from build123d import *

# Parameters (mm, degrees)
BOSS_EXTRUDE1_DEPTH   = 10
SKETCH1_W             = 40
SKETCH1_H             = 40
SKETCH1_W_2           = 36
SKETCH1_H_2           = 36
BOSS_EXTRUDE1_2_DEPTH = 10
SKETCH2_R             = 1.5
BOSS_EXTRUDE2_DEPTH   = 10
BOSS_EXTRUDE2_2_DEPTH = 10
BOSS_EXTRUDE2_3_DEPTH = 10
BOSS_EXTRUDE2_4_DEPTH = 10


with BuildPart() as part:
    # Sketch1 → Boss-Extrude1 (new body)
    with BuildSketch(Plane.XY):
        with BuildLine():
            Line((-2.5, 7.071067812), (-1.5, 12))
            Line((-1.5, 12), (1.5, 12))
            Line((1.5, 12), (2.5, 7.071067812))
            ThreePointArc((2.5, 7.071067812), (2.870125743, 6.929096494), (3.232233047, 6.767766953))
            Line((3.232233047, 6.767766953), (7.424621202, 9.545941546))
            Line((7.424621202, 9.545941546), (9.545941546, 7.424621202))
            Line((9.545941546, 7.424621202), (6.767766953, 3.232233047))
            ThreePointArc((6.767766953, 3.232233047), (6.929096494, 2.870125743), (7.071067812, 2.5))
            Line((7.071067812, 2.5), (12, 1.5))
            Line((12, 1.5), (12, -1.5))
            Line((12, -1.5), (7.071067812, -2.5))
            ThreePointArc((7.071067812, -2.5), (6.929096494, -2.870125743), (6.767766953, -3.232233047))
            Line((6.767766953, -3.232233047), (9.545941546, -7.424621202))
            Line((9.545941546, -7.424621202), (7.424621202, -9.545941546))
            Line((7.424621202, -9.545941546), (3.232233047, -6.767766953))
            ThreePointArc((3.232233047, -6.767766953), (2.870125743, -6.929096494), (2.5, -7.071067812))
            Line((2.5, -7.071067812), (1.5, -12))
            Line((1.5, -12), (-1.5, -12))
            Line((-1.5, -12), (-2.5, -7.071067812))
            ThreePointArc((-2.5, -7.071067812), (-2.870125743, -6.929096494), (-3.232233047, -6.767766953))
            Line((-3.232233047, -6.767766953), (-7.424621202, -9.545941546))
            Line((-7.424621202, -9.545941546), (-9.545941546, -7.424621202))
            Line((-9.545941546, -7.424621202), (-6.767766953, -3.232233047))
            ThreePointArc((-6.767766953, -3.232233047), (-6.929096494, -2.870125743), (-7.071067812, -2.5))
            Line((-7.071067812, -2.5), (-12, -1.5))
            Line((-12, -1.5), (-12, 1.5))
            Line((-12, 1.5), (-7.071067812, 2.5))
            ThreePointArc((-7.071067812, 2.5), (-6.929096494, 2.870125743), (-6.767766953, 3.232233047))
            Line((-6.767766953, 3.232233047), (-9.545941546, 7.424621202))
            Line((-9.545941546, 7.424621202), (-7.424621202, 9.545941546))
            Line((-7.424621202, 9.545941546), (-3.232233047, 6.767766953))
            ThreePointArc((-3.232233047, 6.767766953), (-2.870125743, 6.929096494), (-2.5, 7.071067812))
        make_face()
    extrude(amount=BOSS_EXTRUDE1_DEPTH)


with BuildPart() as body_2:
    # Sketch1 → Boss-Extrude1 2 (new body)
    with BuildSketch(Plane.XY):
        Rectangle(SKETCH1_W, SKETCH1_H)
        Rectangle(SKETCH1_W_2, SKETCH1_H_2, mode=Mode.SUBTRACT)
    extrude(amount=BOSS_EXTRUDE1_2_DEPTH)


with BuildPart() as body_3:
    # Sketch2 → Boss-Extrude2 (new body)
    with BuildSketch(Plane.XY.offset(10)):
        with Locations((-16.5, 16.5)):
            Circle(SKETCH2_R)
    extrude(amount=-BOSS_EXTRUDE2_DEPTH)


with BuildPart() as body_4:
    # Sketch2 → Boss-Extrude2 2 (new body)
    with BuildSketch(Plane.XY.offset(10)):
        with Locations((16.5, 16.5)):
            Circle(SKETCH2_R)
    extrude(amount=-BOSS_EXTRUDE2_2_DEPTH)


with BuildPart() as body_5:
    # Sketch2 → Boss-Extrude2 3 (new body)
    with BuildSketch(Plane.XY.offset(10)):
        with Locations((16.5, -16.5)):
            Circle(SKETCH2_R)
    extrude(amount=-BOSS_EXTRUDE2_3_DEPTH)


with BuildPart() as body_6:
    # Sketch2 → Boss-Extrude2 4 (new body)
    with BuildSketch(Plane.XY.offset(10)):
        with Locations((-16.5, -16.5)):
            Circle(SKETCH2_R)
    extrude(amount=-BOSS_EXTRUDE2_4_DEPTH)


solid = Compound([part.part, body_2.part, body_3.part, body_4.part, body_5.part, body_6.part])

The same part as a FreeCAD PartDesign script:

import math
import FreeCAD as App
import Part
import Sketcher
from FreeCAD import Vector
Q = App.Units.Quantity


def add_polygon(sketch, points):
    """Adds a closed chain of lines whose ends are joined by coincident constraints."""
    first, n = sketch.GeometryCount, len(points)
    for a, b in zip(points, points[1:] + points[:1]):
        sketch.addGeometry(Part.LineSegment(App.Vector(*a, 0), App.Vector(*b, 0)), False)
    for i in range(n):
        sketch.addConstraint(Sketcher.Constraint("Coincident", first + i, 2, first + (i + 1) % n, 1))

doc = App.newDocument("Part")
params = doc.addObject("Spreadsheet::Sheet", "Params")
for row, (alias, value) in enumerate([
    ("sketch1_radius", "7.5 mm"),
    ("sketch1_width", "3 mm"),
    ("sketch1_length", "3 mm"),
    ("pad1_length", "10 mm"),
    ("sketch2_width", "40 mm"),
    ("sketch2_width2", "36 mm"),
    ("pad2_length", "10 mm"),
    ("sketch3_diameter", "3 mm"),
    ("pad3_length", "10 mm"),
    ("sketch4_diameter", "3 mm"),
    ("pad4_length", "10 mm"),
    ("sketch5_diameter", "3 mm"),
    ("pad5_length", "10 mm"),
    ("sketch6_diameter", "3 mm"),
    ("pad6_length", "10 mm"),
], start=1):
    params.set(f"A{row}", alias)
    params.set(f"B{row}", "=" + value)
    params.setAlias(f"B{row}", alias)

body = doc.addObject("PartDesign::Body", "Body")

# Sketch on XY plane
sketch1 = body.newObject("Sketcher::SketchObject", "Sketch")
sketch1.AttachmentSupport = (doc.getObject("XY_Plane"), [""])
sketch1.MapMode = "FlatFace"
sketch1.addGeometry(Part.LineSegment(Vector(-1.5, 12, 0), Vector(-2.5, 7.071068, 0)), False)
sketch1.addGeometry(Part.ArcOfCircle(Part.Circle(Vector(0, 0, 0), Vector(0, 0, 1), 7.5), math.radians(109.471221), math.radians(115.528779)), False)
sketch1.addGeometry(Part.LineSegment(Vector(-3.232233, 6.767767, 0), Vector(-7.424621, 9.545942, 0)), False)
sketch1.addGeometry(Part.LineSegment(Vector(-7.424621, 9.545942, 0), Vector(-9.545942, 7.424621, 0)), False)
sketch1.addGeometry(Part.LineSegment(Vector(-9.545942, 7.424621, 0), Vector(-6.767767, 3.232233, 0)), False)
sketch1.addGeometry(Part.ArcOfCircle(Part.Circle(Vector(0, 0, 0), Vector(0, 0, 1), 7.5), math.radians(154.471221), math.radians(160.528779)), False)
sketch1.addGeometry(Part.LineSegment(Vector(-7.071068, 2.5, 0), Vector(-12, 1.5, 0)), False)
sketch1.addGeometry(Part.LineSegment(Vector(-12, 1.5, 0), Vector(-12, -1.5, 0)), False)
sketch1.addGeometry(Part.LineSegment(Vector(-12, -1.5, 0), Vector(-7.071068, -2.5, 0)), False)
sketch1.addGeometry(Part.ArcOfCircle(Part.Circle(Vector(0, 0, 0), Vector(0, 0, 1), 7.5), math.radians(-160.528779), math.radians(-154.471221)), False)
sketch1.addGeometry(Part.LineSegment(Vector(-6.767767, -3.232233, 0), Vector(-9.545942, -7.424621, 0)), False)
sketch1.addGeometry(Part.LineSegment(Vector(-9.545942, -7.424621, 0), Vector(-7.424621, -9.545942, 0)), False)
sketch1.addGeometry(Part.LineSegment(Vector(-7.424621, -9.545942, 0), Vector(-3.232233, -6.767767, 0)), False)
sketch1.addGeometry(Part.ArcOfCircle(Part.Circle(Vector(0, 0, 0), Vector(0, 0, 1), 7.5), math.radians(-115.528779), math.radians(-109.471221)), False)
sketch1.addGeometry(Part.LineSegment(Vector(-2.5, -7.071068, 0), Vector(-1.5, -12, 0)), False)
sketch1.addGeometry(Part.LineSegment(Vector(-1.5, -12, 0), Vector(1.5, -12, 0)), False)
sketch1.addGeometry(Part.LineSegment(Vector(1.5, -12, 0), Vector(2.5, -7.071068, 0)), False)
sketch1.addGeometry(Part.ArcOfCircle(Part.Circle(Vector(0, 0, 0), Vector(0, 0, 1), 7.5), math.radians(-70.528779), math.radians(-64.471221)), False)
sketch1.addGeometry(Part.LineSegment(Vector(3.232233, -6.767767, 0), Vector(7.424621, -9.545942, 0)), False)
sketch1.addGeometry(Part.LineSegment(Vector(7.424621, -9.545942, 0), Vector(9.545942, -7.424621, 0)), False)
sketch1.addGeometry(Part.LineSegment(Vector(9.545942, -7.424621, 0), Vector(6.767767, -3.232233, 0)), False)
sketch1.addGeometry(Part.ArcOfCircle(Part.Circle(Vector(0, 0, 0), Vector(0, 0, 1), 7.5), math.radians(-25.528779), math.radians(-19.471221)), False)
sketch1.addGeometry(Part.LineSegment(Vector(7.071068, -2.5, 0), Vector(12, -1.5, 0)), False)
sketch1.addGeometry(Part.LineSegment(Vector(12, -1.5, 0), Vector(12, 1.5, 0)), False)
sketch1.addGeometry(Part.LineSegment(Vector(12, 1.5, 0), Vector(7.071068, 2.5, 0)), False)
sketch1.addGeometry(Part.ArcOfCircle(Part.Circle(Vector(0, 0, 0), Vector(0, 0, 1), 7.5), math.radians(19.471221), math.radians(25.528779)), False)
sketch1.addGeometry(Part.LineSegment(Vector(6.767767, 3.232233, 0), Vector(9.545942, 7.424621, 0)), False)
sketch1.addGeometry(Part.LineSegment(Vector(9.545942, 7.424621, 0), Vector(7.424621, 9.545942, 0)), False)
sketch1.addGeometry(Part.LineSegment(Vector(7.424621, 9.545942, 0), Vector(3.232233, 6.767767, 0)), False)
sketch1.addGeometry(Part.ArcOfCircle(Part.Circle(Vector(0, 0, 0), Vector(0, 0, 1), 7.5), math.radians(64.471221), math.radians(70.528779)), False)
sketch1.addGeometry(Part.LineSegment(Vector(2.5, 7.071068, 0), Vector(1.5, 12, 0)), False)
sketch1.addGeometry(Part.LineSegment(Vector(1.5, 12, 0), Vector(-1.5, 12, 0)), False)
sketch1.addConstraint(Sketcher.Constraint("Coincident", 0, 2, 1, 1))
sketch1.addConstraint(Sketcher.Constraint("Coincident", 1, 2, 2, 1))
sketch1.addConstraint(Sketcher.Constraint("Coincident", 2, 2, 3, 1))
sketch1.addConstraint(Sketcher.Constraint("Coincident", 3, 2, 4, 1))
sketch1.addConstraint(Sketcher.Constraint("Coincident", 4, 2, 5, 1))
sketch1.addConstraint(Sketcher.Constraint("Coincident", 5, 2, 6, 1))
sketch1.addConstraint(Sketcher.Constraint("Coincident", 6, 2, 7, 1))
sketch1.addConstraint(Sketcher.Constraint("Coincident", 7, 2, 8, 1))
sketch1.addConstraint(Sketcher.Constraint("Coincident", 8, 2, 9, 1))
sketch1.addConstraint(Sketcher.Constraint("Coincident", 9, 2, 10, 1))
sketch1.addConstraint(Sketcher.Constraint("Coincident", 10, 2, 11, 1))
sketch1.addConstraint(Sketcher.Constraint("Coincident", 11, 2, 12, 1))
sketch1.addConstraint(Sketcher.Constraint("Coincident", 12, 2, 13, 1))
sketch1.addConstraint(Sketcher.Constraint("Coincident", 13, 2, 14, 1))
sketch1.addConstraint(Sketcher.Constraint("Coincident", 14, 2, 15, 1))
sketch1.addConstraint(Sketcher.Constraint("Coincident", 15, 2, 16, 1))
sketch1.addConstraint(Sketcher.Constraint("Coincident", 16, 2, 17, 1))
sketch1.addConstraint(Sketcher.Constraint("Coincident", 17, 2, 18, 1))
sketch1.addConstraint(Sketcher.Constraint("Coincident", 18, 2, 19, 1))
sketch1.addConstraint(Sketcher.Constraint("Coincident", 19, 2, 20, 1))
sketch1.addConstraint(Sketcher.Constraint("Coincident", 20, 2, 21, 1))
sketch1.addConstraint(Sketcher.Constraint("Coincident", 21, 2, 22, 1))
sketch1.addConstraint(Sketcher.Constraint("Coincident", 22, 2, 23, 1))
sketch1.addConstraint(Sketcher.Constraint("Coincident", 23, 2, 24, 1))
sketch1.addConstraint(Sketcher.Constraint("Coincident", 24, 2, 25, 1))
sketch1.addConstraint(Sketcher.Constraint("Coincident", 25, 2, 26, 1))
sketch1.addConstraint(Sketcher.Constraint("Coincident", 26, 2, 27, 1))
sketch1.addConstraint(Sketcher.Constraint("Coincident", 27, 2, 28, 1))
sketch1.addConstraint(Sketcher.Constraint("Coincident", 28, 2, 29, 1))
sketch1.addConstraint(Sketcher.Constraint("Coincident", 29, 2, 30, 1))
sketch1.addConstraint(Sketcher.Constraint("Coincident", 30, 2, 31, 1))
sketch1.addConstraint(Sketcher.Constraint("Coincident", 31, 2, 0, 1))
sketch1.addConstraint(Sketcher.Constraint("Vertical", 7))
sketch1.addConstraint(Sketcher.Constraint("Horizontal", 15))
sketch1.addConstraint(Sketcher.Constraint("Vertical", 23))
sketch1.addConstraint(Sketcher.Constraint("Horizontal", 31))
sketch1.addConstraint(Sketcher.Constraint("Coincident", 1, 3, -1, 1))
sketch1.addConstraint(Sketcher.Constraint("Coincident", 5, 3, -1, 1))
sketch1.addConstraint(Sketcher.Constraint("Coincident", 9, 3, -1, 1))
sketch1.addConstraint(Sketcher.Constraint("Coincident", 13, 3, -1, 1))
sketch1.addConstraint(Sketcher.Constraint("Coincident", 17, 3, -1, 1))
sketch1.addConstraint(Sketcher.Constraint("Coincident", 21, 3, -1, 1))
sketch1.addConstraint(Sketcher.Constraint("Coincident", 25, 3, -1, 1))
sketch1.addConstraint(Sketcher.Constraint("Coincident", 29, 3, -1, 1))
sketch1.addConstraint(Sketcher.Constraint("Equal", 1, 5))
sketch1.addConstraint(Sketcher.Constraint("Equal", 5, 9))
sketch1.addConstraint(Sketcher.Constraint("Equal", 9, 13))
sketch1.addConstraint(Sketcher.Constraint("Equal", 13, 17))
sketch1.addConstraint(Sketcher.Constraint("Equal", 17, 21))
sketch1.addConstraint(Sketcher.Constraint("Equal", 21, 25))
sketch1.addConstraint(Sketcher.Constraint("Equal", 25, 29))
sketch1.addConstraint(Sketcher.Constraint("Symmetric", 2, 2, 18, 2, -1, 1))
sketch1.addConstraint(Sketcher.Constraint("Symmetric", 3, 2, 19, 2, -1, 1))
sketch1.addConstraint(Sketcher.Constraint("Symmetric", 6, 2, 22, 2, -1, 1))
sketch1.addConstraint(Sketcher.Constraint("Symmetric", 10, 2, 26, 2, -1, 1))
sketch1.addConstraint(Sketcher.Constraint("Symmetric", 11, 2, 27, 2, -1, 1))
sketch1.addConstraint(Sketcher.Constraint("Symmetric", 14, 2, 30, 2, -1, 1))
sketch1.addConstraint(Sketcher.Constraint("Symmetric", 11, 2, 18, 2, -2))
sketch1.addConstraint(Sketcher.Constraint("Symmetric", 10, 2, 19, 2, -2))
sketch1.addConstraint(Sketcher.Constraint("Perpendicular", 0, 8))
sketch1.addConstraint(Sketcher.Constraint("Perpendicular", 2, 10))
sketch1.addConstraint(Sketcher.Constraint("Perpendicular", 3, 11))
sketch1.addConstraint(Sketcher.Constraint("Perpendicular", 4, 12))
sketch1.addConstraint(Sketcher.Constraint("Perpendicular", 6, 14))
sketch1.addConstraint(Sketcher.Constraint("Perpendicular", 8, 16))
sketch1.addConstraint(Sketcher.Constraint("Perpendicular", 10, 18))
sketch1.addConstraint(Sketcher.Constraint("Perpendicular", 12, 20))
sketch1.addConstraint(Sketcher.Constraint("Perpendicular", 14, 22))
sketch1.addConstraint(Sketcher.Constraint("Perpendicular", 16, 24))
sketch1.addConstraint(Sketcher.Constraint("Perpendicular", 18, 26))
sketch1.addConstraint(Sketcher.Constraint("Perpendicular", 20, 28))
sketch1.addConstraint(Sketcher.Constraint("Perpendicular", 22, 30))
sketch1.addConstraint(Sketcher.Constraint("Horizontal", 13, 2, 16, 2))
sketch1.addConstraint(Sketcher.Constraint("Horizontal", 12, 2, 17, 2))
sketch1.addConstraint(Sketcher.Constraint("Horizontal", 8, 2, 21, 2))
sketch1.addConstraint(Sketcher.Constraint("Horizontal", 7, 2, 22, 2))
sketch1.addConstraint(Sketcher.Constraint("Horizontal", 6, 2, 23, 2))
sketch1.addConstraint(Sketcher.Constraint("Horizontal", 0, 2, 29, 2))
sketch1.addConstraint(Sketcher.Constraint("Equal", 31, 7))
sketch1.addConstraint(Sketcher.Constraint("Equal", 0, 2))
sketch1.addConstraint(Sketcher.Constraint("Equal", 2, 4))
sketch1.addConstraint(Sketcher.Constraint("Equal", 4, 6))
sketch1.addConstraint(Sketcher.Constraint("Radius", 1, Q("7.5 mm")))
sketch1.addConstraint(Sketcher.Constraint("DistanceX", 15, 1, 15, 2, Q("3 mm")))
sketch1.addConstraint(Sketcher.Constraint("Distance", 3, Q("3 mm")))
sketch1.addConstraint(Sketcher.Constraint("DistanceX", 6, 2, -1, 1, Q("12 mm")))
sketch1.addConstraint(Sketcher.Constraint("DistanceY", 6, 2, 5, 2, Q("1 mm")))
sketch1.addConstraint(Sketcher.Constraint("DistanceY", 1, 2, 0, 2, Q("0.303301 mm")))
sketch1.setExpression("Constraints[82]", "Params.sketch1_radius")
sketch1.setExpression("Constraints[83]", "Params.sketch1_width")
sketch1.setExpression("Constraints[84]", "Params.sketch1_length")
pad1 = body.newObject("PartDesign::Pad", "Pad")
pad1.Profile = sketch1
pad1.setExpression("Length", "Params.pad1_length")
body2 = doc.addObject("PartDesign::Body", "Body001")

# Sketch on XY plane
sketch2 = body2.newObject("Sketcher::SketchObject", "Sketch001")
sketch2.AttachmentSupport = (doc.getObject("XY_Plane001"), [""])
sketch2.MapMode = "FlatFace"
add_polygon(sketch2, [(-20, 20), (-20, -20), (20, -20), (20, 20)])  # lines 0-3
add_polygon(sketch2, [(18, -18), (-18, -18), (-18, 18), (18, 18)])  # lines 4-7
sketch2.addConstraint(Sketcher.Constraint("Vertical", 0))
sketch2.addConstraint(Sketcher.Constraint("Horizontal", 1))
sketch2.addConstraint(Sketcher.Constraint("Vertical", 2))
sketch2.addConstraint(Sketcher.Constraint("Horizontal", 3))
sketch2.addConstraint(Sketcher.Constraint("Horizontal", 4))
sketch2.addConstraint(Sketcher.Constraint("Vertical", 5))
sketch2.addConstraint(Sketcher.Constraint("Horizontal", 6))
sketch2.addConstraint(Sketcher.Constraint("Vertical", 7))
sketch2.addConstraint(Sketcher.Constraint("Symmetric", 0, 2, 2, 2, -1, 1))
sketch2.addConstraint(Sketcher.Constraint("Symmetric", 4, 2, 6, 2, -1, 1))
sketch2.addConstraint(Sketcher.Constraint("Equal", 3, 0))
sketch2.addConstraint(Sketcher.Constraint("Equal", 6, 5))
sketch2.addConstraint(Sketcher.Constraint("DistanceX", 1, 1, 1, 2, Q("40 mm")))
sketch2.addConstraint(Sketcher.Constraint("DistanceX", 4, 2, 4, 1, Q("36 mm")))
sketch2.setExpression("Constraints[20]", "Params.sketch2_width")
sketch2.setExpression("Constraints[21]", "Params.sketch2_width2")
pad2 = body2.newObject("PartDesign::Pad", "Pad001")
pad2.Profile = sketch2
pad2.setExpression("Length", "Params.pad2_length")
body3 = doc.addObject("PartDesign::Body", "Body002")

# Sketch on XY plane
sketch3 = body3.newObject("Sketcher::SketchObject", "Sketch002")
sketch3.AttachmentSupport = (doc.getObject("XY_Plane002"), [""])
sketch3.MapMode = "FlatFace"
sketch3.AttachmentOffset = App.Placement(Vector(0, 0, 10), App.Rotation())
sketch3.addGeometry(Part.Circle(Vector(-16.5, 16.5, 0), Vector(0, 0, 1), 1.5), False)
sketch3.addConstraint(Sketcher.Constraint("Diameter", 0, Q("3 mm")))
sketch3.addConstraint(Sketcher.Constraint("DistanceX", 0, 3, -1, 1, Q("16.5 mm")))
sketch3.addConstraint(Sketcher.Constraint("DistanceY", -1, 1, 0, 3, Q("16.5 mm")))
sketch3.setExpression("Constraints[0]", "Params.sketch3_diameter")
pad3 = body3.newObject("PartDesign::Pad", "Pad002")
pad3.Profile = sketch3
pad3.setExpression("Length", "Params.pad3_length")
pad3.Reversed = True
body4 = doc.addObject("PartDesign::Body", "Body003")

# Sketch on XY plane
sketch4 = body4.newObject("Sketcher::SketchObject", "Sketch003")
sketch4.AttachmentSupport = (doc.getObject("XY_Plane003"), [""])
sketch4.MapMode = "FlatFace"
sketch4.AttachmentOffset = App.Placement(Vector(0, 0, 10), App.Rotation())
sketch4.addGeometry(Part.Circle(Vector(16.5, 16.5, 0), Vector(0, 0, 1), 1.5), False)
sketch4.addConstraint(Sketcher.Constraint("Diameter", 0, Q("3 mm")))
sketch4.addConstraint(Sketcher.Constraint("DistanceX", -1, 1, 0, 3, Q("16.5 mm")))
sketch4.addConstraint(Sketcher.Constraint("DistanceY", -1, 1, 0, 3, Q("16.5 mm")))
sketch4.setExpression("Constraints[0]", "Params.sketch4_diameter")
pad4 = body4.newObject("PartDesign::Pad", "Pad003")
pad4.Profile = sketch4
pad4.setExpression("Length", "Params.pad4_length")
pad4.Reversed = True
body5 = doc.addObject("PartDesign::Body", "Body004")

# Sketch on XY plane
sketch5 = body5.newObject("Sketcher::SketchObject", "Sketch004")
sketch5.AttachmentSupport = (doc.getObject("XY_Plane004"), [""])
sketch5.MapMode = "FlatFace"
sketch5.AttachmentOffset = App.Placement(Vector(0, 0, 10), App.Rotation())
sketch5.addGeometry(Part.Circle(Vector(16.5, -16.5, 0), Vector(0, 0, 1), 1.5), False)
sketch5.addConstraint(Sketcher.Constraint("Diameter", 0, Q("3 mm")))
sketch5.addConstraint(Sketcher.Constraint("DistanceX", -1, 1, 0, 3, Q("16.5 mm")))
sketch5.addConstraint(Sketcher.Constraint("DistanceY", 0, 3, -1, 1, Q("16.5 mm")))
sketch5.setExpression("Constraints[0]", "Params.sketch5_diameter")
pad5 = body5.newObject("PartDesign::Pad", "Pad004")
pad5.Profile = sketch5
pad5.setExpression("Length", "Params.pad5_length")
pad5.Reversed = True
body6 = doc.addObject("PartDesign::Body", "Body005")

# Sketch on XY plane
sketch6 = body6.newObject("Sketcher::SketchObject", "Sketch005")
sketch6.AttachmentSupport = (doc.getObject("XY_Plane005"), [""])
sketch6.MapMode = "FlatFace"
sketch6.AttachmentOffset = App.Placement(Vector(0, 0, 10), App.Rotation())
sketch6.addGeometry(Part.Circle(Vector(-16.5, -16.5, 0), Vector(0, 0, 1), 1.5), False)
sketch6.addConstraint(Sketcher.Constraint("Diameter", 0, Q("3 mm")))
sketch6.addConstraint(Sketcher.Constraint("DistanceX", 0, 3, -1, 1, Q("16.5 mm")))
sketch6.addConstraint(Sketcher.Constraint("DistanceY", 0, 3, -1, 1, Q("16.5 mm")))
sketch6.setExpression("Constraints[0]", "Params.sketch6_diameter")
pad6 = body6.newObject("PartDesign::Pad", "Pad005")
pad6.Profile = sketch6
pad6.setExpression("Length", "Params.pad6_length")
pad6.Reversed = True

doc.recompute()
